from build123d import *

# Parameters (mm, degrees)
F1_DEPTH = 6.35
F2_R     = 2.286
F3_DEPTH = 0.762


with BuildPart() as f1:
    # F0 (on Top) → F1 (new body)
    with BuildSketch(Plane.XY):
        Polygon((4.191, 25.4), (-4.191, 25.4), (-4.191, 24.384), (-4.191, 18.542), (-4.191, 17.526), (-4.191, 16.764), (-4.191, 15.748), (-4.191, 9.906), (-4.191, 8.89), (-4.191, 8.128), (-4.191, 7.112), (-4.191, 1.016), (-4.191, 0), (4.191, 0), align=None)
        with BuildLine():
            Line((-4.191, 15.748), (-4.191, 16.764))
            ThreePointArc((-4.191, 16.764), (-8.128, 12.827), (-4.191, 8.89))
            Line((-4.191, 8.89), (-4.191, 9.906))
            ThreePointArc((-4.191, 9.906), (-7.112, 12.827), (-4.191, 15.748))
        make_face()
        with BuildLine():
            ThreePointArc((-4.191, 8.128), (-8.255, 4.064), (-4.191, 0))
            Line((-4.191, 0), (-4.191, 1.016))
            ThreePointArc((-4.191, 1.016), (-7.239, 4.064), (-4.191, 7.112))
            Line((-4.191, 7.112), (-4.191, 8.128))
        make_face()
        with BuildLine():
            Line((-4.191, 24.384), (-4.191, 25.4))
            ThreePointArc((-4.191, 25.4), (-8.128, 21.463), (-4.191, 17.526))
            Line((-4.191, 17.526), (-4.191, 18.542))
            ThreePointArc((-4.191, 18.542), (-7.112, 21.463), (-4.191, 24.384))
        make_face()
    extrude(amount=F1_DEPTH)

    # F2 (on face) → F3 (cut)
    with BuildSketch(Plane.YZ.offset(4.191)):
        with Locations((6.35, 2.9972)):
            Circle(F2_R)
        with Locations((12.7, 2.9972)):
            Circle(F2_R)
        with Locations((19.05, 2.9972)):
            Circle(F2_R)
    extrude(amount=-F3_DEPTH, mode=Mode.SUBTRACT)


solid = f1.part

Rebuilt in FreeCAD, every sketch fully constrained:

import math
import FreeCAD as App
import Part
import Sketcher
Q = App.Units.Quantity

doc = App.newDocument("Part")
body = doc.addObject("PartDesign::Body", "Body")

sketch1 = doc.addObject("Sketcher::SketchObject", "Sketch")
body.addObject(sketch1)
sketch1.AttachmentSupport = (doc.XY_Plane, [""])
sketch1.MapMode = "FlatFace"
sketch1.addGeometry([
    Part.LineSegment(App.Vector(4.2, 25.4, 0), App.Vector(-4.2, 25.4, 0)),
    Part.ArcOfCircle(Part.Circle(App.Vector(-4.2, 21.5, 0), App.Vector(0, 0, 1), 3.9), math.radians(90), math.radians(270)),
    Part.LineSegment(App.Vector(-4.2, 17.5, 0), App.Vector(-4.2, 16.8, 0)),
    Part.ArcOfCircle(Part.Circle(App.Vector(-4.2, 12.8, 0), App.Vector(0, 0, 1), 3.9), math.radians(90), math.radians(270)),
    Part.LineSegment(App.Vector(-4.2, 8.9, 0), App.Vector(-4.2, 8.1, 0)),
    Part.ArcOfCircle(Part.Circle(App.Vector(-4.2, 4.1, 0), App.Vector(0, 0, 1), 4.1), math.radians(90), math.radians(270)),
    Part.LineSegment(App.Vector(-4.2, 0, 0), App.Vector(4.2, 0, 0)),
    Part.LineSegment(App.Vector(4.2, 0, 0), App.Vector(4.2, 25.4, 0)),
    Part.LineSegment(App.Vector(-4.2, 24.4, 0), App.Vector(-4.2, 18.5, 0)),
    Part.ArcOfCircle(Part.Circle(App.Vector(-4.2, 21.5, 0), App.Vector(0, 0, 1), 2.9), math.radians(90), math.radians(270)),
    Part.LineSegment(App.Vector(-4.2, 7.1, 0), App.Vector(-4.2, 1, 0)),
    Part.ArcOfCircle(Part.Circle(App.Vector(-4.2, 4.1, 0), App.Vector(0, 0, 1), 3), math.radians(90), math.radians(270)),
    Part.LineSegment(App.Vector(-4.2, 15.7, 0), App.Vector(-4.2, 9.9, 0)),
    Part.ArcOfCircle(Part.Circle(App.Vector(-4.2, 12.8, 0), App.Vector(0, 0, 1), 2.9), math.radians(90), math.radians(270)),
], False)
sketch1.addConstraint([
    Sketcher.Constraint("Tangent", 0, 2, 1, 1),
    Sketcher.Constraint("Coincident", 1, 2, 2, 1),
    Sketcher.Constraint("Coincident", 2, 2, 3, 1),
    Sketcher.Constraint("Coincident", 3, 2, 4, 1),
    Sketcher.Constraint("Coincident", 4, 2, 5, 1),
    Sketcher.Constraint("Tangent", 5, 2, 6, 1),
    Sketcher.Constraint("Coincident", 6, 2, 7, 1),
    Sketcher.Constraint("Coincident", 7, 2, 0, 1),
    Sketcher.Constraint("Coincident", 8, 1, 9, 1),
    Sketcher.Constraint("Coincident", 9, 2, 8, 2),
    Sketcher.Constraint("Coincident", 10, 1, 11, 1),
    Sketcher.Constraint("Coincident", 11, 2, 10, 2),
    Sketcher.Constraint("Coincident", 12, 1, 13, 1),
    Sketcher.Constraint("Coincident", 13, 2, 12, 2),
    Sketcher.Constraint("Horizontal", 0),
    Sketcher.Constraint("Vertical", 2),
    Sketcher.Constraint("Vertical", 4),
    Sketcher.Constraint("Horizontal", 6),
    Sketcher.Constraint("Vertical", 7),
    Sketcher.Constraint("Vertical", 8),
    Sketcher.Constraint("Vertical", 10),
    Sketcher.Constraint("Vertical", 12),
    Sketcher.Constraint("Coincident", 9, 3, 1, 3),
    Sketcher.Constraint("Coincident", 11, 3, 5, 3),
    Sketcher.Constraint("Coincident", 13, 3, 3, 3),
    Sketcher.Constraint("Equal", 1, 3),
    Sketcher.Constraint("Equal", 9, 13),
    Sketcher.Constraint("Symmetric", 5, 2, 6, 2, -1, 1),
    Sketcher.Constraint("Vertical", 1, 3, 3, 3),
    Sketcher.Constraint("Vertical", 3, 3, 5, 3),
    Sketcher.Constraint("Vertical", 0, 2, 1, 2),
    Sketcher.Constraint("Vertical", 2, 2, 3, 2),
    Sketcher.Constraint("Vertical", 5, 2, 8, 1),
    Sketcher.Constraint("Vertical", 9, 2, 10, 1),
    Sketcher.Constraint("Vertical", 11, 2, 12, 1),
    Sketcher.Constraint("Equal", 2, 4),
    Sketcher.Constraint("DistanceY", 7, 1, 7, 2, Q("1 in")),
    Sketcher.Constraint("Radius", 5, Q("0.16 in")),
    Sketcher.Constraint("Radius", 11, Q("0.12 in")),
    Sketcher.Constraint("Radius", 1, Q("0.155 in")),
    Sketcher.Constraint("Radius", 9, Q("0.115 in")),
    Sketcher.Constraint("DistanceX", 0, 2, 0, 1, Q("0.33 in")),
])
pad1 = doc.addObject("PartDesign::Pad", "Pad")
body.addObject(pad1)
pad1.Profile = sketch1
pad1.Length = Q("0.25 in")

sketch2 = doc.addObject("Sketcher::SketchObject", "Sketch001")
body.addObject(sketch2)
sketch2.AttachmentSupport = (doc.YZ_Plane, [""])
sketch2.MapMode = "FlatFace"
sketch2.AttachmentOffset = App.Placement(App.Vector(0, 0, 0.165 * 25.4), App.Rotation())
sketch2.addGeometry([
    Part.Circle(App.Vector(6.3, 3, 0), App.Vector(0, 0, 1), 2.3),
    Part.Circle(App.Vector(12.7, 3, 0), App.Vector(0, 0, 1), 2.3),
    Part.Circle(App.Vector(19.1, 3, 0), App.Vector(0, 0, 1), 2.3),
], False)
sketch2.addConstraint([
    Sketcher.Constraint("Equal", 0, 1),
    Sketcher.Constraint("Equal", 1, 2),
    Sketcher.Constraint("Horizontal", 0, 3, 1, 3),
    Sketcher.Constraint("Horizontal", 1, 3, 2, 3),
    Sketcher.Constraint("Diameter", 0, Q("0.18 in")),
    Sketcher.Constraint("DistanceX", -1, 1, 1, 3, Q("0.5 in")),
    Sketcher.Constraint("DistanceX", 0, 3, 2, 3, Q("0.5 in")),
    Sketcher.Constraint("DistanceX", -1, 1, 0, 3, Q("0.25 in")),
    Sketcher.Constraint("DistanceY", -1, 1, 0, 3, Q("0.118 in")),
])
pocket1 = doc.addObject("PartDesign::Pocket", "Pocket")
body.addObject(pocket1)
pocket1.Profile = sketch2
pocket1.Length = Q("0.03 in")

doc.recompute()
